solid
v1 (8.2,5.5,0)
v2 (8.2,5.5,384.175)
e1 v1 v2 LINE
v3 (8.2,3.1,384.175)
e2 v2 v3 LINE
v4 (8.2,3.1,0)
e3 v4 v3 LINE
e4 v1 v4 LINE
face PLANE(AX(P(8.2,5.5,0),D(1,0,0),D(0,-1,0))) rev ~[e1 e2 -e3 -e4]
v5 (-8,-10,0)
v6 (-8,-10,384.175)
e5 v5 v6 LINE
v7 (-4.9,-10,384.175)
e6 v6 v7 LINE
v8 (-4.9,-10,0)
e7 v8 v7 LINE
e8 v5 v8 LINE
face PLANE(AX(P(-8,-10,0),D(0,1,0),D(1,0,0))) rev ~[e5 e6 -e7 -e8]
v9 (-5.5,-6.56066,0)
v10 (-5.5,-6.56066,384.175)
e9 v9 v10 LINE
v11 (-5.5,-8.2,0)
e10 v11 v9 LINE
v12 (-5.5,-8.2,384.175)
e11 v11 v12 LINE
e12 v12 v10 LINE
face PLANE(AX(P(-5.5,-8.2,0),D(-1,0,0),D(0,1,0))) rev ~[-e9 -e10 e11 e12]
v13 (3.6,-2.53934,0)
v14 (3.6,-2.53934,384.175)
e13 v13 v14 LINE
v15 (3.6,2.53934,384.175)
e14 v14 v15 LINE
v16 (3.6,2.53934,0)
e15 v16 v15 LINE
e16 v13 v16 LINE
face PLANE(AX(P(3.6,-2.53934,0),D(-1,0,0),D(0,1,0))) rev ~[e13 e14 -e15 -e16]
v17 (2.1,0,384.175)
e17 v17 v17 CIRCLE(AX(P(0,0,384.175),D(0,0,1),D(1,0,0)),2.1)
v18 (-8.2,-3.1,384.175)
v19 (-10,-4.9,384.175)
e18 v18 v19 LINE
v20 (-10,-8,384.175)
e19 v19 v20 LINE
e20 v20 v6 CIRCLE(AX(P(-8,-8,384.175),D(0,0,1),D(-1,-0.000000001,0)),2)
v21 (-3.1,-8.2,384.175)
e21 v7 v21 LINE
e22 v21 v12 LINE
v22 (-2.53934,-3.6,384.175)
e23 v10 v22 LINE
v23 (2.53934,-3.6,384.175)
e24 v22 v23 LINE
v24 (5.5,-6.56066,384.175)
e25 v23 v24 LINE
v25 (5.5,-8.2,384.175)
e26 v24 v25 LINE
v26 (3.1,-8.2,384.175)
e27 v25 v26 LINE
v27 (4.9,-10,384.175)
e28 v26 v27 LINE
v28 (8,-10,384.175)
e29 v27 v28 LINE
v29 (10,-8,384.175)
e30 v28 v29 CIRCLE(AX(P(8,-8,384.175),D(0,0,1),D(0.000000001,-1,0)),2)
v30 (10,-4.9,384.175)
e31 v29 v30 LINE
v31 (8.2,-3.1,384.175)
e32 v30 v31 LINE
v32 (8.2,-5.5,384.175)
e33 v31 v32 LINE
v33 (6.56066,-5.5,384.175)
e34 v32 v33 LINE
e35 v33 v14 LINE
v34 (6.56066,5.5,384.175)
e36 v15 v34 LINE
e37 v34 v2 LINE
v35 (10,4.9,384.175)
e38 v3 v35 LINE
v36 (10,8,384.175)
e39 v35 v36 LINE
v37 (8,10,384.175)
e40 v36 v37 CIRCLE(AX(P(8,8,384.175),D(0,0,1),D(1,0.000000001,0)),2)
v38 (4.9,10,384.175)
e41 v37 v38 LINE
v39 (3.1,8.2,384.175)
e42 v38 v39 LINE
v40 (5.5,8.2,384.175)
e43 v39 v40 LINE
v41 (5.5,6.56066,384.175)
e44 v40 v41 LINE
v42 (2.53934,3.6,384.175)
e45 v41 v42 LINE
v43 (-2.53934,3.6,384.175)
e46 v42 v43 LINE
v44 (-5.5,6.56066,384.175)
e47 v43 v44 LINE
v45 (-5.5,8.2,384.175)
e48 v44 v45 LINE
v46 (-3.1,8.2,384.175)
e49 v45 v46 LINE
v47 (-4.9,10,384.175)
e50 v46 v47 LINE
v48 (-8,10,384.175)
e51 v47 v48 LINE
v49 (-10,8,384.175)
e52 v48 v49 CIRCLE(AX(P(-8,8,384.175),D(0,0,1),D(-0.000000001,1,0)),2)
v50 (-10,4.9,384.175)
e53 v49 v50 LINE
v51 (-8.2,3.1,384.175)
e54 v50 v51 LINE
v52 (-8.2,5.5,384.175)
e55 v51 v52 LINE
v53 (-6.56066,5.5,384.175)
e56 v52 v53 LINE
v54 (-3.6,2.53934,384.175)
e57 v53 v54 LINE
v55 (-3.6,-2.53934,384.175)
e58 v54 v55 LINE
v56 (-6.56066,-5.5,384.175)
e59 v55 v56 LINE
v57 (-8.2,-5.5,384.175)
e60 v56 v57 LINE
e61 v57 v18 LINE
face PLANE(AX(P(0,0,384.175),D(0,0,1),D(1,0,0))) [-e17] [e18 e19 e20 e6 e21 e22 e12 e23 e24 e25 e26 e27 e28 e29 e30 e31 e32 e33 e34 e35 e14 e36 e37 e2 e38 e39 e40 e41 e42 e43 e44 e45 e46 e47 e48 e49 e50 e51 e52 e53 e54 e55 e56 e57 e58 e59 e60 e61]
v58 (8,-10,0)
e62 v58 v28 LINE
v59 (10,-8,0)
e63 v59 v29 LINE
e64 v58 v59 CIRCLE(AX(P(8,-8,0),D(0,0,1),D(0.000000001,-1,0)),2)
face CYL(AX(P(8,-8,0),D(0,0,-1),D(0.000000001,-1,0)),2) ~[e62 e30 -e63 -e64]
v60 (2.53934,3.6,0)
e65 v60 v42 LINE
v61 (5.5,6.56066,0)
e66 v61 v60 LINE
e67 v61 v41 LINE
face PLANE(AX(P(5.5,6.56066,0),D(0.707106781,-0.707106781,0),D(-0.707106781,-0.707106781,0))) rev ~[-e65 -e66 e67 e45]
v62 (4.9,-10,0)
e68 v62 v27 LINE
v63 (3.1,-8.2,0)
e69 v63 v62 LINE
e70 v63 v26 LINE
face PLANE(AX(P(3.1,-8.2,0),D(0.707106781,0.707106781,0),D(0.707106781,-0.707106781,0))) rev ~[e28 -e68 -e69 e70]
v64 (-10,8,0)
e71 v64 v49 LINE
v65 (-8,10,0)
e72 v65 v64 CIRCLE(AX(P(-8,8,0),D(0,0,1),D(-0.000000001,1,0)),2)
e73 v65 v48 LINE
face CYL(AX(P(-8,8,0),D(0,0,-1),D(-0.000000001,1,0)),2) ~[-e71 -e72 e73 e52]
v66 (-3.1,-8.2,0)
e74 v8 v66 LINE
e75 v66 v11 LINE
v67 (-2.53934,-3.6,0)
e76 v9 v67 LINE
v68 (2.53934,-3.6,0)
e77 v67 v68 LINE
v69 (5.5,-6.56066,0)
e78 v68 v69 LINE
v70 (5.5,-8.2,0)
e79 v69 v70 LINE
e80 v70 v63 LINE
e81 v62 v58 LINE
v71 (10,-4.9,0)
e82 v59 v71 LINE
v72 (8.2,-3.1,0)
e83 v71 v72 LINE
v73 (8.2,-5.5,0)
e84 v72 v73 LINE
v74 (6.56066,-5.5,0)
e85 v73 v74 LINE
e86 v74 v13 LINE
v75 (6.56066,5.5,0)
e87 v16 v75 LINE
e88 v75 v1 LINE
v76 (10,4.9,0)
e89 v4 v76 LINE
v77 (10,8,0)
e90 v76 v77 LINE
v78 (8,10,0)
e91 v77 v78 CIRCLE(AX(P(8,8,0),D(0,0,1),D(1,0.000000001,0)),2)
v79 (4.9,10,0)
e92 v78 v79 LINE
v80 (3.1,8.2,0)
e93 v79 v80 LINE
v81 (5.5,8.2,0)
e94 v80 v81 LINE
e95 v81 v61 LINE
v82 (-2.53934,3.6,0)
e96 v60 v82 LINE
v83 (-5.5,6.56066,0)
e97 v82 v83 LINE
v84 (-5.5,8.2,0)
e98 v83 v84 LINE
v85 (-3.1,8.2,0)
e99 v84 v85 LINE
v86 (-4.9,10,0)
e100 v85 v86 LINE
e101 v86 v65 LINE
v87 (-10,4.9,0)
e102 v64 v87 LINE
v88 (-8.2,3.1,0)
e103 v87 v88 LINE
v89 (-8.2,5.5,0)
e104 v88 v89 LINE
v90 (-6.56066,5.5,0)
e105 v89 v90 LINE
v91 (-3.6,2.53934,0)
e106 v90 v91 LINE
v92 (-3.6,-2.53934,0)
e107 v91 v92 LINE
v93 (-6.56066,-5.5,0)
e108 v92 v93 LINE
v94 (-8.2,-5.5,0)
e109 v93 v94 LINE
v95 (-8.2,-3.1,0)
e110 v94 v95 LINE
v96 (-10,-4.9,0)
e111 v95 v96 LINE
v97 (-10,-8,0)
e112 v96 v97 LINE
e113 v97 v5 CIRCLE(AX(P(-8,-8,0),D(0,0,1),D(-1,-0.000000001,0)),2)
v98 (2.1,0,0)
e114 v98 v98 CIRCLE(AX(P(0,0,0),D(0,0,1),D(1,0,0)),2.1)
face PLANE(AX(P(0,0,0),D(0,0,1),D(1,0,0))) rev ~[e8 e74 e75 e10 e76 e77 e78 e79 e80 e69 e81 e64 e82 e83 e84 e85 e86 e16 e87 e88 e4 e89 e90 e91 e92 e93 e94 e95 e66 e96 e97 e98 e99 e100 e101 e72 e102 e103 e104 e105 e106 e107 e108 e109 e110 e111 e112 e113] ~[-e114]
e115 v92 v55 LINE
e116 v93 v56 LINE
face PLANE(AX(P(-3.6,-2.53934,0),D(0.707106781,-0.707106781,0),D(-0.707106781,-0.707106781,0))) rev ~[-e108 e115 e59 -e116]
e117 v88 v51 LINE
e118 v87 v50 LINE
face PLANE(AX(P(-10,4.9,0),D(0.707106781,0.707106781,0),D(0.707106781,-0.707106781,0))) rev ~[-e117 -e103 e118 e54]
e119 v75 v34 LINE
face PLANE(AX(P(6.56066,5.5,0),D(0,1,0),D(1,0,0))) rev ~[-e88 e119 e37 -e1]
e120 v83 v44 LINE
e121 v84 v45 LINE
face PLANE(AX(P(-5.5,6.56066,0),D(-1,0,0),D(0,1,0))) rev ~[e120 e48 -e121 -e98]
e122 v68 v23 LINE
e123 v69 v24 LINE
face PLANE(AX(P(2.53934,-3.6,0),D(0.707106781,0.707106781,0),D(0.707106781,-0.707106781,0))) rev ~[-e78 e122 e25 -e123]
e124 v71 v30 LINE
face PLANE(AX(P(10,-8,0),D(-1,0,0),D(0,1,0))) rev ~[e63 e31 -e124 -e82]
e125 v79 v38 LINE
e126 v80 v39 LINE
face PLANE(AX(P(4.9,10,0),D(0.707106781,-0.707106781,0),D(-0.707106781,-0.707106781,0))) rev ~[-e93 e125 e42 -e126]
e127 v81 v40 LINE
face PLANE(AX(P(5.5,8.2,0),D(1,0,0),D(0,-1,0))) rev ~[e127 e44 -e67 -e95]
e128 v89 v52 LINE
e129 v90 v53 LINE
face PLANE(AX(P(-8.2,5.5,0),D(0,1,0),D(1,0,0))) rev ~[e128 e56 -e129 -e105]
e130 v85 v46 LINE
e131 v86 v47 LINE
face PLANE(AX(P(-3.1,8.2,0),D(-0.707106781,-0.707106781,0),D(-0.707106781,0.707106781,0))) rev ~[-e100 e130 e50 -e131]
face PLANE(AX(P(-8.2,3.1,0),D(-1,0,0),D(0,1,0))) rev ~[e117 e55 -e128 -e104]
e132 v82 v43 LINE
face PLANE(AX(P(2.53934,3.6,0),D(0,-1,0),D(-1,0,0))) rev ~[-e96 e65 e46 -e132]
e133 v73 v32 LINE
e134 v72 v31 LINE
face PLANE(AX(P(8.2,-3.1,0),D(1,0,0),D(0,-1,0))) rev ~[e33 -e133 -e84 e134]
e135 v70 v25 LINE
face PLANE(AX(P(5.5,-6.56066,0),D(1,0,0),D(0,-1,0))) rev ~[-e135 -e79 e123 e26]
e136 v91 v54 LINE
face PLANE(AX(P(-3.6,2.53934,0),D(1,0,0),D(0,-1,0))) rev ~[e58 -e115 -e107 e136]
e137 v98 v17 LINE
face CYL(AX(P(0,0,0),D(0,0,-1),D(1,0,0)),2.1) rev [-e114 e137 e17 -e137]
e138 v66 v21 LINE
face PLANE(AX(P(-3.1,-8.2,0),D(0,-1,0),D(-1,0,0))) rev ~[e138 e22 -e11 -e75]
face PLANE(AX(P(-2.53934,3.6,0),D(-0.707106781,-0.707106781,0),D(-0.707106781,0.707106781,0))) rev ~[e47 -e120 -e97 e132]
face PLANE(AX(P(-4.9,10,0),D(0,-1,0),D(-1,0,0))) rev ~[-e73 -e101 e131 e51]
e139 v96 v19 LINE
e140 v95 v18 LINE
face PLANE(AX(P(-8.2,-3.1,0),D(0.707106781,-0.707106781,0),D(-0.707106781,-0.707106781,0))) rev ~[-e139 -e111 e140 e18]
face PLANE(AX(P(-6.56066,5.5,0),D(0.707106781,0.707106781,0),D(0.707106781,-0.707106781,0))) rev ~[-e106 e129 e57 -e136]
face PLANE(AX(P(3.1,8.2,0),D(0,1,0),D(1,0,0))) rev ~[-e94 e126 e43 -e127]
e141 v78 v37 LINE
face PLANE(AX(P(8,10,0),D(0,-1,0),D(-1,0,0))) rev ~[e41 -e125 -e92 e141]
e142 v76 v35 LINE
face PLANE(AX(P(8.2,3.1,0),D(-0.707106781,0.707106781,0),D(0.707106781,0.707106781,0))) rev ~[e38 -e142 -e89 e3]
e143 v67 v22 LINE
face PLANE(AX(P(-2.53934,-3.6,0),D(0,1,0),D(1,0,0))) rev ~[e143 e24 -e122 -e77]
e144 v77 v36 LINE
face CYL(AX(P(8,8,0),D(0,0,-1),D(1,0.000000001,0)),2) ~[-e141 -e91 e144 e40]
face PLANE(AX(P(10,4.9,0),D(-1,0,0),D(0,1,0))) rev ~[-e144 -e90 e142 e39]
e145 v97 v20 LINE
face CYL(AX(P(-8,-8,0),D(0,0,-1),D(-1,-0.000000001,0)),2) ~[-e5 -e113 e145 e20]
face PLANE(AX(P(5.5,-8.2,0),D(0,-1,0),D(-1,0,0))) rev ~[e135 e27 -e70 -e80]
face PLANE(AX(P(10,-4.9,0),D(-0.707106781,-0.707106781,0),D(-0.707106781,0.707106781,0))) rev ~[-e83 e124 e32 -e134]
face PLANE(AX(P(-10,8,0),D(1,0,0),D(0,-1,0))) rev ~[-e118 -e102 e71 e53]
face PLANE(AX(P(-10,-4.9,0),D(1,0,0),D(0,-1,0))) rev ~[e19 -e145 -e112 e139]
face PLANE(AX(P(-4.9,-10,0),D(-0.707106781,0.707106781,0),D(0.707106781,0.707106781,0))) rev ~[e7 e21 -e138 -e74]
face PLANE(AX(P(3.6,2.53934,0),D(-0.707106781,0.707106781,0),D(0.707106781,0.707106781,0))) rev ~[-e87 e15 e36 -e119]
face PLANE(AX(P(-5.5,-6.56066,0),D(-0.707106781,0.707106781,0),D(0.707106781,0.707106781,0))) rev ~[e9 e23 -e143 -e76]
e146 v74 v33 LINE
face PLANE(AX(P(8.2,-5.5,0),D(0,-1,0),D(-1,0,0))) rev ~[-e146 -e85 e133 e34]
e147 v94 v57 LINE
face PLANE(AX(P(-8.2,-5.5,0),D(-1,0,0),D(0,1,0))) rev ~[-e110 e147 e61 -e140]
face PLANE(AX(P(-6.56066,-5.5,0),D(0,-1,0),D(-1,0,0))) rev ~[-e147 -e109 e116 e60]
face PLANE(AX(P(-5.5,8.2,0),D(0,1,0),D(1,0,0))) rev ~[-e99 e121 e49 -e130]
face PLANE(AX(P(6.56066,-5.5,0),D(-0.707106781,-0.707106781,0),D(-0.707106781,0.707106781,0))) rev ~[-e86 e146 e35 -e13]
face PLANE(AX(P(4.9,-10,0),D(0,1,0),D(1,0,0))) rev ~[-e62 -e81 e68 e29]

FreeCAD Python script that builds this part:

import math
import FreeCAD as App
import Part
import Sketcher
from FreeCAD import Vector

doc = App.newDocument("Part")
params = doc.addObject("Spreadsheet::Sheet", "Params")
for row, (alias, value) in enumerate([
    ("sketch1_radius", "2 mm"),
    ("sketch1_diameter", "4.2 mm"),
    ("sketch1_width", "2.4 mm"),
    ("sketch1_width2", "3.1 mm"),
    ("pad1_length", "384.175 mm"),
], start=1):
    params.set(f"A{row}", alias)
    params.set(f"B{row}", "=" + value)
    params.setAlias(f"B{row}", alias)

body = doc.addObject("PartDesign::Body", "Body")

sketch1 = body.newObject("Sketcher::SketchObject", "Sketch")
sketch1.AttachmentSupport = (doc.getObject("XY_Plane"), [""])
sketch1.MapMode = "FlatFace"
sketch1.addGeometry([
    Part.LineSegment(Vector(-4.9, -10, 0), Vector(-3.1, -8.2, 0)),
    Part.LineSegment(Vector(-3.1, -8.2, 0), Vector(-5.5, -8.2, 0)),
    Part.LineSegment(Vector(-5.5, -8.2, 0), Vector(-5.5, -6.6, 0)),
    Part.LineSegment(Vector(-5.5, -6.6, 0), Vector(-2.5, -3.6, 0)),
    Part.LineSegment(Vector(-2.5, -3.6, 0), Vector(2.5, -3.6, 0)),
    Part.LineSegment(Vector(2.5, -3.6, 0), Vector(5.5, -6.6, 0)),
    Part.LineSegment(Vector(5.5, -6.6, 0), Vector(5.5, -8.2, 0)),
    Part.LineSegment(Vector(5.5, -8.2, 0), Vector(3.1, -8.2, 0)),
    Part.LineSegment(Vector(3.1, -8.2, 0), Vector(4.9, -10, 0)),
    Part.LineSegment(Vector(4.9, -10, 0), Vector(8, -10, 0)),
    Part.ArcOfCircle(Part.Circle(Vector(8, -8, 0), Vector(0, 0, 1), 2), math.radians(-90), math.radians(0)),
    Part.LineSegment(Vector(10, -8, 0), Vector(10, -4.9, 0)),
    Part.LineSegment(Vector(10, -4.9, 0), Vector(8.2, -3.1, 0)),
    Part.LineSegment(Vector(8.2, -3.1, 0), Vector(8.2, -5.5, 0)),
    Part.LineSegment(Vector(8.2, -5.5, 0), Vector(6.6, -5.5, 0)),
    Part.LineSegment(Vector(6.6, -5.5, 0), Vector(3.6, -2.5, 0)),
    Part.LineSegment(Vector(3.6, -2.5, 0), Vector(3.6, 2.5, 0)),
    Part.LineSegment(Vector(3.6, 2.5, 0), Vector(6.6, 5.5, 0)),
    Part.LineSegment(Vector(6.6, 5.5, 0), Vector(8.2, 5.5, 0)),
    Part.LineSegment(Vector(8.2, 5.5, 0), Vector(8.2, 3.1, 0)),
    Part.LineSegment(Vector(8.2, 3.1, 0), Vector(10, 4.9, 0)),
    Part.LineSegment(Vector(10, 4.9, 0), Vector(10, 8, 0)),
    Part.ArcOfCircle(Part.Circle(Vector(8, 8, 0), Vector(0, 0, 1), 2), math.radians(0), math.radians(90)),
    Part.LineSegment(Vector(8, 10, 0), Vector(4.9, 10, 0)),
    Part.LineSegment(Vector(4.9, 10, 0), Vector(3.1, 8.2, 0)),
    Part.LineSegment(Vector(3.1, 8.2, 0), Vector(5.5, 8.2, 0)),
    Part.LineSegment(Vector(5.5, 8.2, 0), Vector(5.5, 6.6, 0)),
    Part.LineSegment(Vector(5.5, 6.6, 0), Vector(2.5, 3.6, 0)),
    Part.LineSegment(Vector(2.5, 3.6, 0), Vector(-2.5, 3.6, 0)),
    Part.LineSegment(Vector(-2.5, 3.6, 0), Vector(-5.5, 6.6, 0)),
    Part.LineSegment(Vector(-5.5, 6.6, 0), Vector(-5.5, 8.2, 0)),
    Part.LineSegment(Vector(-5.5, 8.2, 0), Vector(-3.1, 8.2, 0)),
    Part.LineSegment(Vector(-3.1, 8.2, 0), Vector(-4.9, 10, 0)),
    Part.LineSegment(Vector(-4.9, 10, 0), Vector(-8, 10, 0)),
    Part.ArcOfCircle(Part.Circle(Vector(-8, 8, 0), Vector(0, 0, 1), 2), math.radians(90), math.radians(180)),
    Part.LineSegment(Vector(-10, 8, 0), Vector(-10, 4.9, 0)),
    Part.LineSegment(Vector(-10, 4.9, 0), Vector(-8.2, 3.1, 0)),
    Part.LineSegment(Vector(-8.2, 3.1, 0), Vector(-8.2, 5.5, 0)),
    Part.LineSegment(Vector(-8.2, 5.5, 0), Vector(-6.6, 5.5, 0)),
    Part.LineSegment(Vector(-6.6, 5.5, 0), Vector(-3.6, 2.5, 0)),
    Part.LineSegment(Vector(-3.6, 2.5, 0), Vector(-3.6, -2.5, 0)),
    Part.LineSegment(Vector(-3.6, -2.5, 0), Vector(-6.6, -5.5, 0)),
    Part.LineSegment(Vector(-6.6, -5.5, 0), Vector(-8.2, -5.5, 0)),
    Part.LineSegment(Vector(-8.2, -5.5, 0), Vector(-8.2, -3.1, 0)),
    Part.LineSegment(Vector(-8.2, -3.1, 0), Vector(-10, -4.9, 0)),
    Part.LineSegment(Vector(-10, -4.9, 0), Vector(-10, -8, 0)),
    Part.ArcOfCircle(Part.Circle(Vector(-8, -8, 0), Vector(0, 0, 1), 2), math.radians(-180), math.radians(-90)),
    Part.LineSegment(Vector(-8, -10, 0), Vector(-4.9, -10, 0)),
    Part.Circle(Vector(0, 0, 0), Vector(0, 0, 1), 2.1),
], False)
sketch1.addConstraint([
    Sketcher.Constraint("Coincident", 0, 2, 1, 1),
    Sketcher.Constraint("Coincident", 1, 2, 2, 1),
    Sketcher.Constraint("Coincident", 2, 2, 3, 1),
    Sketcher.Constraint("Coincident", 3, 2, 4, 1),
    Sketcher.Constraint("Coincident", 4, 2, 5, 1),
    Sketcher.Constraint("Coincident", 5, 2, 6, 1),
    Sketcher.Constraint("Coincident", 6, 2, 7, 1),
    Sketcher.Constraint("Coincident", 7, 2, 8, 1),
    Sketcher.Constraint("Coincident", 8, 2, 9, 1),
    Sketcher.Constraint("Tangent", 9, 2, 10, 1),
    Sketcher.Constraint("Tangent", 10, 2, 11, 1),
    Sketcher.Constraint("Coincident", 11, 2, 12, 1),
    Sketcher.Constraint("Coincident", 12, 2, 13, 1),
    Sketcher.Constraint("Coincident", 13, 2, 14, 1),
    Sketcher.Constraint("Coincident", 14, 2, 15, 1),
    Sketcher.Constraint("Coincident", 15, 2, 16, 1),
    Sketcher.Constraint("Coincident", 16, 2, 17, 1),
    Sketcher.Constraint("Coincident", 17, 2, 18, 1),
    Sketcher.Constraint("Coincident", 18, 2, 19, 1),
    Sketcher.Constraint("Coincident", 19, 2, 20, 1),
    Sketcher.Constraint("Coincident", 20, 2, 21, 1),
    Sketcher.Constraint("Tangent", 21, 2, 22, 1),
    Sketcher.Constraint("Tangent", 22, 2, 23, 1),
    Sketcher.Constraint("Coincident", 23, 2, 24, 1),
    Sketcher.Constraint("Coincident", 24, 2, 25, 1),
    Sketcher.Constraint("Coincident", 25, 2, 26, 1),
    Sketcher.Constraint("Coincident", 26, 2, 27, 1),
    Sketcher.Constraint("Coincident", 27, 2, 28, 1),
    Sketcher.Constraint("Coincident", 28, 2, 29, 1),
    Sketcher.Constraint("Coincident", 29, 2, 30, 1),
    Sketcher.Constraint("Coincident", 30, 2, 31, 1),
    Sketcher.Constraint("Coincident", 31, 2, 32, 1),
    Sketcher.Constraint("Coincident", 32, 2, 33, 1),
    Sketcher.Constraint("Tangent", 33, 2, 34, 1),
    Sketcher.Constraint("Tangent", 34, 2, 35, 1),
    Sketcher.Constraint("Coincident", 35, 2, 36, 1),
    Sketcher.Constraint("Coincident", 36, 2, 37, 1),
    Sketcher.Constraint("Coincident", 37, 2, 38, 1),
    Sketcher.Constraint("Coincident", 38, 2, 39, 1),
    Sketcher.Constraint("Coincident", 39, 2, 40, 1),
    Sketcher.Constraint("Coincident", 40, 2, 41, 1),
    Sketcher.Constraint("Coincident", 41, 2, 42, 1),
    Sketcher.Constraint("Coincident", 42, 2, 43, 1),
    Sketcher.Constraint("Coincident", 43, 2, 44, 1),
    Sketcher.Constraint("Coincident", 44, 2, 45, 1),
    Sketcher.Constraint("Tangent", 45, 2, 46, 1),
    Sketcher.Constraint("Tangent", 46, 2, 47, 1),
    Sketcher.Constraint("Coincident", 47, 2, 0, 1),
    Sketcher.Constraint("Horizontal", 1),
    Sketcher.Constraint("Vertical", 2),
    Sketcher.Constraint("Horizontal", 4),
    Sketcher.Constraint("Vertical", 6),
    Sketcher.Constraint("Horizontal", 7),
    Sketcher.Constraint("Horizontal", 9),
    Sketcher.Constraint("Vertical", 11),
    Sketcher.Constraint("Vertical", 13),
    Sketcher.Constraint("Horizontal", 14),
    Sketcher.Constraint("Vertical", 16),
    Sketcher.Constraint("Horizontal", 18),
    Sketcher.Constraint("Vertical", 19),
    Sketcher.Constraint("Vertical", 21),
    Sketcher.Constraint("Horizontal", 23),
    Sketcher.Constraint("Horizontal", 25),
    Sketcher.Constraint("Vertical", 26),
    Sketcher.Constraint("Horizontal", 28),
    Sketcher.Constraint("Vertical", 30),
    Sketcher.Constraint("Horizontal", 31),
    Sketcher.Constraint("Horizontal", 33),
    Sketcher.Constraint("Vertical", 35),
    Sketcher.Constraint("Vertical", 37),
    Sketcher.Constraint("Horizontal", 38),
    Sketcher.Constraint("Vertical", 40),
    Sketcher.Constraint("Horizontal", 42),
    Sketcher.Constraint("Vertical", 43),
    Sketcher.Constraint("Vertical", 45),
    Sketcher.Constraint("Horizontal", 47),
    Sketcher.Constraint("Coincident", 48, 3, -1, 1),
    Sketcher.Constraint("Equal", 10, 22),
    Sketcher.Constraint("Equal", 22, 34),
    Sketcher.Constraint("Equal", 34, 46),
    Sketcher.Constraint("Symmetric", 10, 3, 34, 3, -1, 1),
    Sketcher.Constraint("Symmetric", 22, 3, 46, 3, -1, 1),
    Sketcher.Constraint("Symmetric", 0, 2, 24, 2, -1, 1),
    Sketcher.Constraint("Symmetric", 2, 2, 26, 2, -1, 1),
    Sketcher.Constraint("Symmetric", 3, 2, 27, 2, -1, 1),
    Sketcher.Constraint("Symmetric", 5, 2, 29, 2, -1, 1),
    Sketcher.Constraint("Symmetric", 7, 2, 31, 2, -1, 1),
    Sketcher.Constraint("Symmetric", 12, 2, 36, 2, -1, 1),
    Sketcher.Constraint("Symmetric", 14, 2, 38, 2, -1, 1),
    Sketcher.Constraint("Symmetric", 15, 2, 39, 2, -1, 1),
    Sketcher.Constraint("Symmetric", 17, 2, 41, 2, -1, 1),
    Sketcher.Constraint("Symmetric", 19, 2, 43, 2, -1, 1),
    Sketcher.Constraint("Symmetric", 22, 3, 34, 3, -2),
    Sketcher.Constraint("Symmetric", 2, 2, 5, 2, -2),
    Sketcher.Constraint("Symmetric", 0, 2, 7, 2, -2),
    Sketcher.Constraint("Symmetric", 19, 2, 36, 2, -2),
    Sketcher.Constraint("Symmetric", 17, 2, 38, 2, -2),
    Sketcher.Constraint("Parallel", 0, 3),
    Sketcher.Constraint("Perpendicular", 3, 5),
    Sketcher.Constraint("Parallel", 5, 8),
    Sketcher.Constraint("Parallel", 8, 12),
    Sketcher.Constraint("Parallel", 12, 15),
    Sketcher.Constraint("Perpendicular", 15, 17),
    Sketcher.Constraint("Parallel", 17, 20),
    Sketcher.Constraint("Parallel", 20, 24),
    Sketcher.Constraint("Perpendicular", 27, 29),
    Sketcher.Constraint("Parallel", 29, 32),
    Sketcher.Constraint("Parallel", 32, 36),
    Sketcher.Constraint("Perpendicular", 39, 41),
    Sketcher.Constraint("Parallel", 41, 44),
    Sketcher.Constraint("Horizontal", 20, 2, 35, 2),
    Sketcher.Constraint("Equal", 42, 2),
    Sketcher.Constraint("Equal", 47, 11),
    Sketcher.Constraint("Equal", 31, 13),
    Sketcher.Constraint("Equal", 28, 16),
    Sketcher.Constraint("Equal", 8, 12),
    Sketcher.Constraint("Equal", 5, 15),
    Sketcher.Constraint("Radius", 10, 2.0),
    Sketcher.Constraint("Diameter", 48, 4.2),
    Sketcher.Constraint("DistanceX", 1, 2, 1, 1, 2.4),
    Sketcher.Constraint("DistanceX", 9, 1, 9, 2, 3.1),
    Sketcher.Constraint("DistanceX", -1, 1, 10, 3, 8.0),
    Sketcher.Constraint("DistanceX", 0, 2, -1, 1, 3.1),
    Sketcher.Constraint("DistanceY", 3, 2, -1, 1, 3.6),
    Sketcher.Constraint("DistanceX", 4, 1, 4, 2, 5.07868),
])
sketch1.setExpression("Constraints[117]", "Params.sketch1_radius")
sketch1.setExpression("Constraints[118]", "Params.sketch1_diameter")
sketch1.setExpression("Constraints[119]", "Params.sketch1_width")
sketch1.setExpression("Constraints[120]", "Params.sketch1_width2")
pad1 = body.newObject("PartDesign::Pad", "Pad")
pad1.Profile = sketch1
pad1.setExpression("Length", "Params.pad1_length")

doc.recompute()
